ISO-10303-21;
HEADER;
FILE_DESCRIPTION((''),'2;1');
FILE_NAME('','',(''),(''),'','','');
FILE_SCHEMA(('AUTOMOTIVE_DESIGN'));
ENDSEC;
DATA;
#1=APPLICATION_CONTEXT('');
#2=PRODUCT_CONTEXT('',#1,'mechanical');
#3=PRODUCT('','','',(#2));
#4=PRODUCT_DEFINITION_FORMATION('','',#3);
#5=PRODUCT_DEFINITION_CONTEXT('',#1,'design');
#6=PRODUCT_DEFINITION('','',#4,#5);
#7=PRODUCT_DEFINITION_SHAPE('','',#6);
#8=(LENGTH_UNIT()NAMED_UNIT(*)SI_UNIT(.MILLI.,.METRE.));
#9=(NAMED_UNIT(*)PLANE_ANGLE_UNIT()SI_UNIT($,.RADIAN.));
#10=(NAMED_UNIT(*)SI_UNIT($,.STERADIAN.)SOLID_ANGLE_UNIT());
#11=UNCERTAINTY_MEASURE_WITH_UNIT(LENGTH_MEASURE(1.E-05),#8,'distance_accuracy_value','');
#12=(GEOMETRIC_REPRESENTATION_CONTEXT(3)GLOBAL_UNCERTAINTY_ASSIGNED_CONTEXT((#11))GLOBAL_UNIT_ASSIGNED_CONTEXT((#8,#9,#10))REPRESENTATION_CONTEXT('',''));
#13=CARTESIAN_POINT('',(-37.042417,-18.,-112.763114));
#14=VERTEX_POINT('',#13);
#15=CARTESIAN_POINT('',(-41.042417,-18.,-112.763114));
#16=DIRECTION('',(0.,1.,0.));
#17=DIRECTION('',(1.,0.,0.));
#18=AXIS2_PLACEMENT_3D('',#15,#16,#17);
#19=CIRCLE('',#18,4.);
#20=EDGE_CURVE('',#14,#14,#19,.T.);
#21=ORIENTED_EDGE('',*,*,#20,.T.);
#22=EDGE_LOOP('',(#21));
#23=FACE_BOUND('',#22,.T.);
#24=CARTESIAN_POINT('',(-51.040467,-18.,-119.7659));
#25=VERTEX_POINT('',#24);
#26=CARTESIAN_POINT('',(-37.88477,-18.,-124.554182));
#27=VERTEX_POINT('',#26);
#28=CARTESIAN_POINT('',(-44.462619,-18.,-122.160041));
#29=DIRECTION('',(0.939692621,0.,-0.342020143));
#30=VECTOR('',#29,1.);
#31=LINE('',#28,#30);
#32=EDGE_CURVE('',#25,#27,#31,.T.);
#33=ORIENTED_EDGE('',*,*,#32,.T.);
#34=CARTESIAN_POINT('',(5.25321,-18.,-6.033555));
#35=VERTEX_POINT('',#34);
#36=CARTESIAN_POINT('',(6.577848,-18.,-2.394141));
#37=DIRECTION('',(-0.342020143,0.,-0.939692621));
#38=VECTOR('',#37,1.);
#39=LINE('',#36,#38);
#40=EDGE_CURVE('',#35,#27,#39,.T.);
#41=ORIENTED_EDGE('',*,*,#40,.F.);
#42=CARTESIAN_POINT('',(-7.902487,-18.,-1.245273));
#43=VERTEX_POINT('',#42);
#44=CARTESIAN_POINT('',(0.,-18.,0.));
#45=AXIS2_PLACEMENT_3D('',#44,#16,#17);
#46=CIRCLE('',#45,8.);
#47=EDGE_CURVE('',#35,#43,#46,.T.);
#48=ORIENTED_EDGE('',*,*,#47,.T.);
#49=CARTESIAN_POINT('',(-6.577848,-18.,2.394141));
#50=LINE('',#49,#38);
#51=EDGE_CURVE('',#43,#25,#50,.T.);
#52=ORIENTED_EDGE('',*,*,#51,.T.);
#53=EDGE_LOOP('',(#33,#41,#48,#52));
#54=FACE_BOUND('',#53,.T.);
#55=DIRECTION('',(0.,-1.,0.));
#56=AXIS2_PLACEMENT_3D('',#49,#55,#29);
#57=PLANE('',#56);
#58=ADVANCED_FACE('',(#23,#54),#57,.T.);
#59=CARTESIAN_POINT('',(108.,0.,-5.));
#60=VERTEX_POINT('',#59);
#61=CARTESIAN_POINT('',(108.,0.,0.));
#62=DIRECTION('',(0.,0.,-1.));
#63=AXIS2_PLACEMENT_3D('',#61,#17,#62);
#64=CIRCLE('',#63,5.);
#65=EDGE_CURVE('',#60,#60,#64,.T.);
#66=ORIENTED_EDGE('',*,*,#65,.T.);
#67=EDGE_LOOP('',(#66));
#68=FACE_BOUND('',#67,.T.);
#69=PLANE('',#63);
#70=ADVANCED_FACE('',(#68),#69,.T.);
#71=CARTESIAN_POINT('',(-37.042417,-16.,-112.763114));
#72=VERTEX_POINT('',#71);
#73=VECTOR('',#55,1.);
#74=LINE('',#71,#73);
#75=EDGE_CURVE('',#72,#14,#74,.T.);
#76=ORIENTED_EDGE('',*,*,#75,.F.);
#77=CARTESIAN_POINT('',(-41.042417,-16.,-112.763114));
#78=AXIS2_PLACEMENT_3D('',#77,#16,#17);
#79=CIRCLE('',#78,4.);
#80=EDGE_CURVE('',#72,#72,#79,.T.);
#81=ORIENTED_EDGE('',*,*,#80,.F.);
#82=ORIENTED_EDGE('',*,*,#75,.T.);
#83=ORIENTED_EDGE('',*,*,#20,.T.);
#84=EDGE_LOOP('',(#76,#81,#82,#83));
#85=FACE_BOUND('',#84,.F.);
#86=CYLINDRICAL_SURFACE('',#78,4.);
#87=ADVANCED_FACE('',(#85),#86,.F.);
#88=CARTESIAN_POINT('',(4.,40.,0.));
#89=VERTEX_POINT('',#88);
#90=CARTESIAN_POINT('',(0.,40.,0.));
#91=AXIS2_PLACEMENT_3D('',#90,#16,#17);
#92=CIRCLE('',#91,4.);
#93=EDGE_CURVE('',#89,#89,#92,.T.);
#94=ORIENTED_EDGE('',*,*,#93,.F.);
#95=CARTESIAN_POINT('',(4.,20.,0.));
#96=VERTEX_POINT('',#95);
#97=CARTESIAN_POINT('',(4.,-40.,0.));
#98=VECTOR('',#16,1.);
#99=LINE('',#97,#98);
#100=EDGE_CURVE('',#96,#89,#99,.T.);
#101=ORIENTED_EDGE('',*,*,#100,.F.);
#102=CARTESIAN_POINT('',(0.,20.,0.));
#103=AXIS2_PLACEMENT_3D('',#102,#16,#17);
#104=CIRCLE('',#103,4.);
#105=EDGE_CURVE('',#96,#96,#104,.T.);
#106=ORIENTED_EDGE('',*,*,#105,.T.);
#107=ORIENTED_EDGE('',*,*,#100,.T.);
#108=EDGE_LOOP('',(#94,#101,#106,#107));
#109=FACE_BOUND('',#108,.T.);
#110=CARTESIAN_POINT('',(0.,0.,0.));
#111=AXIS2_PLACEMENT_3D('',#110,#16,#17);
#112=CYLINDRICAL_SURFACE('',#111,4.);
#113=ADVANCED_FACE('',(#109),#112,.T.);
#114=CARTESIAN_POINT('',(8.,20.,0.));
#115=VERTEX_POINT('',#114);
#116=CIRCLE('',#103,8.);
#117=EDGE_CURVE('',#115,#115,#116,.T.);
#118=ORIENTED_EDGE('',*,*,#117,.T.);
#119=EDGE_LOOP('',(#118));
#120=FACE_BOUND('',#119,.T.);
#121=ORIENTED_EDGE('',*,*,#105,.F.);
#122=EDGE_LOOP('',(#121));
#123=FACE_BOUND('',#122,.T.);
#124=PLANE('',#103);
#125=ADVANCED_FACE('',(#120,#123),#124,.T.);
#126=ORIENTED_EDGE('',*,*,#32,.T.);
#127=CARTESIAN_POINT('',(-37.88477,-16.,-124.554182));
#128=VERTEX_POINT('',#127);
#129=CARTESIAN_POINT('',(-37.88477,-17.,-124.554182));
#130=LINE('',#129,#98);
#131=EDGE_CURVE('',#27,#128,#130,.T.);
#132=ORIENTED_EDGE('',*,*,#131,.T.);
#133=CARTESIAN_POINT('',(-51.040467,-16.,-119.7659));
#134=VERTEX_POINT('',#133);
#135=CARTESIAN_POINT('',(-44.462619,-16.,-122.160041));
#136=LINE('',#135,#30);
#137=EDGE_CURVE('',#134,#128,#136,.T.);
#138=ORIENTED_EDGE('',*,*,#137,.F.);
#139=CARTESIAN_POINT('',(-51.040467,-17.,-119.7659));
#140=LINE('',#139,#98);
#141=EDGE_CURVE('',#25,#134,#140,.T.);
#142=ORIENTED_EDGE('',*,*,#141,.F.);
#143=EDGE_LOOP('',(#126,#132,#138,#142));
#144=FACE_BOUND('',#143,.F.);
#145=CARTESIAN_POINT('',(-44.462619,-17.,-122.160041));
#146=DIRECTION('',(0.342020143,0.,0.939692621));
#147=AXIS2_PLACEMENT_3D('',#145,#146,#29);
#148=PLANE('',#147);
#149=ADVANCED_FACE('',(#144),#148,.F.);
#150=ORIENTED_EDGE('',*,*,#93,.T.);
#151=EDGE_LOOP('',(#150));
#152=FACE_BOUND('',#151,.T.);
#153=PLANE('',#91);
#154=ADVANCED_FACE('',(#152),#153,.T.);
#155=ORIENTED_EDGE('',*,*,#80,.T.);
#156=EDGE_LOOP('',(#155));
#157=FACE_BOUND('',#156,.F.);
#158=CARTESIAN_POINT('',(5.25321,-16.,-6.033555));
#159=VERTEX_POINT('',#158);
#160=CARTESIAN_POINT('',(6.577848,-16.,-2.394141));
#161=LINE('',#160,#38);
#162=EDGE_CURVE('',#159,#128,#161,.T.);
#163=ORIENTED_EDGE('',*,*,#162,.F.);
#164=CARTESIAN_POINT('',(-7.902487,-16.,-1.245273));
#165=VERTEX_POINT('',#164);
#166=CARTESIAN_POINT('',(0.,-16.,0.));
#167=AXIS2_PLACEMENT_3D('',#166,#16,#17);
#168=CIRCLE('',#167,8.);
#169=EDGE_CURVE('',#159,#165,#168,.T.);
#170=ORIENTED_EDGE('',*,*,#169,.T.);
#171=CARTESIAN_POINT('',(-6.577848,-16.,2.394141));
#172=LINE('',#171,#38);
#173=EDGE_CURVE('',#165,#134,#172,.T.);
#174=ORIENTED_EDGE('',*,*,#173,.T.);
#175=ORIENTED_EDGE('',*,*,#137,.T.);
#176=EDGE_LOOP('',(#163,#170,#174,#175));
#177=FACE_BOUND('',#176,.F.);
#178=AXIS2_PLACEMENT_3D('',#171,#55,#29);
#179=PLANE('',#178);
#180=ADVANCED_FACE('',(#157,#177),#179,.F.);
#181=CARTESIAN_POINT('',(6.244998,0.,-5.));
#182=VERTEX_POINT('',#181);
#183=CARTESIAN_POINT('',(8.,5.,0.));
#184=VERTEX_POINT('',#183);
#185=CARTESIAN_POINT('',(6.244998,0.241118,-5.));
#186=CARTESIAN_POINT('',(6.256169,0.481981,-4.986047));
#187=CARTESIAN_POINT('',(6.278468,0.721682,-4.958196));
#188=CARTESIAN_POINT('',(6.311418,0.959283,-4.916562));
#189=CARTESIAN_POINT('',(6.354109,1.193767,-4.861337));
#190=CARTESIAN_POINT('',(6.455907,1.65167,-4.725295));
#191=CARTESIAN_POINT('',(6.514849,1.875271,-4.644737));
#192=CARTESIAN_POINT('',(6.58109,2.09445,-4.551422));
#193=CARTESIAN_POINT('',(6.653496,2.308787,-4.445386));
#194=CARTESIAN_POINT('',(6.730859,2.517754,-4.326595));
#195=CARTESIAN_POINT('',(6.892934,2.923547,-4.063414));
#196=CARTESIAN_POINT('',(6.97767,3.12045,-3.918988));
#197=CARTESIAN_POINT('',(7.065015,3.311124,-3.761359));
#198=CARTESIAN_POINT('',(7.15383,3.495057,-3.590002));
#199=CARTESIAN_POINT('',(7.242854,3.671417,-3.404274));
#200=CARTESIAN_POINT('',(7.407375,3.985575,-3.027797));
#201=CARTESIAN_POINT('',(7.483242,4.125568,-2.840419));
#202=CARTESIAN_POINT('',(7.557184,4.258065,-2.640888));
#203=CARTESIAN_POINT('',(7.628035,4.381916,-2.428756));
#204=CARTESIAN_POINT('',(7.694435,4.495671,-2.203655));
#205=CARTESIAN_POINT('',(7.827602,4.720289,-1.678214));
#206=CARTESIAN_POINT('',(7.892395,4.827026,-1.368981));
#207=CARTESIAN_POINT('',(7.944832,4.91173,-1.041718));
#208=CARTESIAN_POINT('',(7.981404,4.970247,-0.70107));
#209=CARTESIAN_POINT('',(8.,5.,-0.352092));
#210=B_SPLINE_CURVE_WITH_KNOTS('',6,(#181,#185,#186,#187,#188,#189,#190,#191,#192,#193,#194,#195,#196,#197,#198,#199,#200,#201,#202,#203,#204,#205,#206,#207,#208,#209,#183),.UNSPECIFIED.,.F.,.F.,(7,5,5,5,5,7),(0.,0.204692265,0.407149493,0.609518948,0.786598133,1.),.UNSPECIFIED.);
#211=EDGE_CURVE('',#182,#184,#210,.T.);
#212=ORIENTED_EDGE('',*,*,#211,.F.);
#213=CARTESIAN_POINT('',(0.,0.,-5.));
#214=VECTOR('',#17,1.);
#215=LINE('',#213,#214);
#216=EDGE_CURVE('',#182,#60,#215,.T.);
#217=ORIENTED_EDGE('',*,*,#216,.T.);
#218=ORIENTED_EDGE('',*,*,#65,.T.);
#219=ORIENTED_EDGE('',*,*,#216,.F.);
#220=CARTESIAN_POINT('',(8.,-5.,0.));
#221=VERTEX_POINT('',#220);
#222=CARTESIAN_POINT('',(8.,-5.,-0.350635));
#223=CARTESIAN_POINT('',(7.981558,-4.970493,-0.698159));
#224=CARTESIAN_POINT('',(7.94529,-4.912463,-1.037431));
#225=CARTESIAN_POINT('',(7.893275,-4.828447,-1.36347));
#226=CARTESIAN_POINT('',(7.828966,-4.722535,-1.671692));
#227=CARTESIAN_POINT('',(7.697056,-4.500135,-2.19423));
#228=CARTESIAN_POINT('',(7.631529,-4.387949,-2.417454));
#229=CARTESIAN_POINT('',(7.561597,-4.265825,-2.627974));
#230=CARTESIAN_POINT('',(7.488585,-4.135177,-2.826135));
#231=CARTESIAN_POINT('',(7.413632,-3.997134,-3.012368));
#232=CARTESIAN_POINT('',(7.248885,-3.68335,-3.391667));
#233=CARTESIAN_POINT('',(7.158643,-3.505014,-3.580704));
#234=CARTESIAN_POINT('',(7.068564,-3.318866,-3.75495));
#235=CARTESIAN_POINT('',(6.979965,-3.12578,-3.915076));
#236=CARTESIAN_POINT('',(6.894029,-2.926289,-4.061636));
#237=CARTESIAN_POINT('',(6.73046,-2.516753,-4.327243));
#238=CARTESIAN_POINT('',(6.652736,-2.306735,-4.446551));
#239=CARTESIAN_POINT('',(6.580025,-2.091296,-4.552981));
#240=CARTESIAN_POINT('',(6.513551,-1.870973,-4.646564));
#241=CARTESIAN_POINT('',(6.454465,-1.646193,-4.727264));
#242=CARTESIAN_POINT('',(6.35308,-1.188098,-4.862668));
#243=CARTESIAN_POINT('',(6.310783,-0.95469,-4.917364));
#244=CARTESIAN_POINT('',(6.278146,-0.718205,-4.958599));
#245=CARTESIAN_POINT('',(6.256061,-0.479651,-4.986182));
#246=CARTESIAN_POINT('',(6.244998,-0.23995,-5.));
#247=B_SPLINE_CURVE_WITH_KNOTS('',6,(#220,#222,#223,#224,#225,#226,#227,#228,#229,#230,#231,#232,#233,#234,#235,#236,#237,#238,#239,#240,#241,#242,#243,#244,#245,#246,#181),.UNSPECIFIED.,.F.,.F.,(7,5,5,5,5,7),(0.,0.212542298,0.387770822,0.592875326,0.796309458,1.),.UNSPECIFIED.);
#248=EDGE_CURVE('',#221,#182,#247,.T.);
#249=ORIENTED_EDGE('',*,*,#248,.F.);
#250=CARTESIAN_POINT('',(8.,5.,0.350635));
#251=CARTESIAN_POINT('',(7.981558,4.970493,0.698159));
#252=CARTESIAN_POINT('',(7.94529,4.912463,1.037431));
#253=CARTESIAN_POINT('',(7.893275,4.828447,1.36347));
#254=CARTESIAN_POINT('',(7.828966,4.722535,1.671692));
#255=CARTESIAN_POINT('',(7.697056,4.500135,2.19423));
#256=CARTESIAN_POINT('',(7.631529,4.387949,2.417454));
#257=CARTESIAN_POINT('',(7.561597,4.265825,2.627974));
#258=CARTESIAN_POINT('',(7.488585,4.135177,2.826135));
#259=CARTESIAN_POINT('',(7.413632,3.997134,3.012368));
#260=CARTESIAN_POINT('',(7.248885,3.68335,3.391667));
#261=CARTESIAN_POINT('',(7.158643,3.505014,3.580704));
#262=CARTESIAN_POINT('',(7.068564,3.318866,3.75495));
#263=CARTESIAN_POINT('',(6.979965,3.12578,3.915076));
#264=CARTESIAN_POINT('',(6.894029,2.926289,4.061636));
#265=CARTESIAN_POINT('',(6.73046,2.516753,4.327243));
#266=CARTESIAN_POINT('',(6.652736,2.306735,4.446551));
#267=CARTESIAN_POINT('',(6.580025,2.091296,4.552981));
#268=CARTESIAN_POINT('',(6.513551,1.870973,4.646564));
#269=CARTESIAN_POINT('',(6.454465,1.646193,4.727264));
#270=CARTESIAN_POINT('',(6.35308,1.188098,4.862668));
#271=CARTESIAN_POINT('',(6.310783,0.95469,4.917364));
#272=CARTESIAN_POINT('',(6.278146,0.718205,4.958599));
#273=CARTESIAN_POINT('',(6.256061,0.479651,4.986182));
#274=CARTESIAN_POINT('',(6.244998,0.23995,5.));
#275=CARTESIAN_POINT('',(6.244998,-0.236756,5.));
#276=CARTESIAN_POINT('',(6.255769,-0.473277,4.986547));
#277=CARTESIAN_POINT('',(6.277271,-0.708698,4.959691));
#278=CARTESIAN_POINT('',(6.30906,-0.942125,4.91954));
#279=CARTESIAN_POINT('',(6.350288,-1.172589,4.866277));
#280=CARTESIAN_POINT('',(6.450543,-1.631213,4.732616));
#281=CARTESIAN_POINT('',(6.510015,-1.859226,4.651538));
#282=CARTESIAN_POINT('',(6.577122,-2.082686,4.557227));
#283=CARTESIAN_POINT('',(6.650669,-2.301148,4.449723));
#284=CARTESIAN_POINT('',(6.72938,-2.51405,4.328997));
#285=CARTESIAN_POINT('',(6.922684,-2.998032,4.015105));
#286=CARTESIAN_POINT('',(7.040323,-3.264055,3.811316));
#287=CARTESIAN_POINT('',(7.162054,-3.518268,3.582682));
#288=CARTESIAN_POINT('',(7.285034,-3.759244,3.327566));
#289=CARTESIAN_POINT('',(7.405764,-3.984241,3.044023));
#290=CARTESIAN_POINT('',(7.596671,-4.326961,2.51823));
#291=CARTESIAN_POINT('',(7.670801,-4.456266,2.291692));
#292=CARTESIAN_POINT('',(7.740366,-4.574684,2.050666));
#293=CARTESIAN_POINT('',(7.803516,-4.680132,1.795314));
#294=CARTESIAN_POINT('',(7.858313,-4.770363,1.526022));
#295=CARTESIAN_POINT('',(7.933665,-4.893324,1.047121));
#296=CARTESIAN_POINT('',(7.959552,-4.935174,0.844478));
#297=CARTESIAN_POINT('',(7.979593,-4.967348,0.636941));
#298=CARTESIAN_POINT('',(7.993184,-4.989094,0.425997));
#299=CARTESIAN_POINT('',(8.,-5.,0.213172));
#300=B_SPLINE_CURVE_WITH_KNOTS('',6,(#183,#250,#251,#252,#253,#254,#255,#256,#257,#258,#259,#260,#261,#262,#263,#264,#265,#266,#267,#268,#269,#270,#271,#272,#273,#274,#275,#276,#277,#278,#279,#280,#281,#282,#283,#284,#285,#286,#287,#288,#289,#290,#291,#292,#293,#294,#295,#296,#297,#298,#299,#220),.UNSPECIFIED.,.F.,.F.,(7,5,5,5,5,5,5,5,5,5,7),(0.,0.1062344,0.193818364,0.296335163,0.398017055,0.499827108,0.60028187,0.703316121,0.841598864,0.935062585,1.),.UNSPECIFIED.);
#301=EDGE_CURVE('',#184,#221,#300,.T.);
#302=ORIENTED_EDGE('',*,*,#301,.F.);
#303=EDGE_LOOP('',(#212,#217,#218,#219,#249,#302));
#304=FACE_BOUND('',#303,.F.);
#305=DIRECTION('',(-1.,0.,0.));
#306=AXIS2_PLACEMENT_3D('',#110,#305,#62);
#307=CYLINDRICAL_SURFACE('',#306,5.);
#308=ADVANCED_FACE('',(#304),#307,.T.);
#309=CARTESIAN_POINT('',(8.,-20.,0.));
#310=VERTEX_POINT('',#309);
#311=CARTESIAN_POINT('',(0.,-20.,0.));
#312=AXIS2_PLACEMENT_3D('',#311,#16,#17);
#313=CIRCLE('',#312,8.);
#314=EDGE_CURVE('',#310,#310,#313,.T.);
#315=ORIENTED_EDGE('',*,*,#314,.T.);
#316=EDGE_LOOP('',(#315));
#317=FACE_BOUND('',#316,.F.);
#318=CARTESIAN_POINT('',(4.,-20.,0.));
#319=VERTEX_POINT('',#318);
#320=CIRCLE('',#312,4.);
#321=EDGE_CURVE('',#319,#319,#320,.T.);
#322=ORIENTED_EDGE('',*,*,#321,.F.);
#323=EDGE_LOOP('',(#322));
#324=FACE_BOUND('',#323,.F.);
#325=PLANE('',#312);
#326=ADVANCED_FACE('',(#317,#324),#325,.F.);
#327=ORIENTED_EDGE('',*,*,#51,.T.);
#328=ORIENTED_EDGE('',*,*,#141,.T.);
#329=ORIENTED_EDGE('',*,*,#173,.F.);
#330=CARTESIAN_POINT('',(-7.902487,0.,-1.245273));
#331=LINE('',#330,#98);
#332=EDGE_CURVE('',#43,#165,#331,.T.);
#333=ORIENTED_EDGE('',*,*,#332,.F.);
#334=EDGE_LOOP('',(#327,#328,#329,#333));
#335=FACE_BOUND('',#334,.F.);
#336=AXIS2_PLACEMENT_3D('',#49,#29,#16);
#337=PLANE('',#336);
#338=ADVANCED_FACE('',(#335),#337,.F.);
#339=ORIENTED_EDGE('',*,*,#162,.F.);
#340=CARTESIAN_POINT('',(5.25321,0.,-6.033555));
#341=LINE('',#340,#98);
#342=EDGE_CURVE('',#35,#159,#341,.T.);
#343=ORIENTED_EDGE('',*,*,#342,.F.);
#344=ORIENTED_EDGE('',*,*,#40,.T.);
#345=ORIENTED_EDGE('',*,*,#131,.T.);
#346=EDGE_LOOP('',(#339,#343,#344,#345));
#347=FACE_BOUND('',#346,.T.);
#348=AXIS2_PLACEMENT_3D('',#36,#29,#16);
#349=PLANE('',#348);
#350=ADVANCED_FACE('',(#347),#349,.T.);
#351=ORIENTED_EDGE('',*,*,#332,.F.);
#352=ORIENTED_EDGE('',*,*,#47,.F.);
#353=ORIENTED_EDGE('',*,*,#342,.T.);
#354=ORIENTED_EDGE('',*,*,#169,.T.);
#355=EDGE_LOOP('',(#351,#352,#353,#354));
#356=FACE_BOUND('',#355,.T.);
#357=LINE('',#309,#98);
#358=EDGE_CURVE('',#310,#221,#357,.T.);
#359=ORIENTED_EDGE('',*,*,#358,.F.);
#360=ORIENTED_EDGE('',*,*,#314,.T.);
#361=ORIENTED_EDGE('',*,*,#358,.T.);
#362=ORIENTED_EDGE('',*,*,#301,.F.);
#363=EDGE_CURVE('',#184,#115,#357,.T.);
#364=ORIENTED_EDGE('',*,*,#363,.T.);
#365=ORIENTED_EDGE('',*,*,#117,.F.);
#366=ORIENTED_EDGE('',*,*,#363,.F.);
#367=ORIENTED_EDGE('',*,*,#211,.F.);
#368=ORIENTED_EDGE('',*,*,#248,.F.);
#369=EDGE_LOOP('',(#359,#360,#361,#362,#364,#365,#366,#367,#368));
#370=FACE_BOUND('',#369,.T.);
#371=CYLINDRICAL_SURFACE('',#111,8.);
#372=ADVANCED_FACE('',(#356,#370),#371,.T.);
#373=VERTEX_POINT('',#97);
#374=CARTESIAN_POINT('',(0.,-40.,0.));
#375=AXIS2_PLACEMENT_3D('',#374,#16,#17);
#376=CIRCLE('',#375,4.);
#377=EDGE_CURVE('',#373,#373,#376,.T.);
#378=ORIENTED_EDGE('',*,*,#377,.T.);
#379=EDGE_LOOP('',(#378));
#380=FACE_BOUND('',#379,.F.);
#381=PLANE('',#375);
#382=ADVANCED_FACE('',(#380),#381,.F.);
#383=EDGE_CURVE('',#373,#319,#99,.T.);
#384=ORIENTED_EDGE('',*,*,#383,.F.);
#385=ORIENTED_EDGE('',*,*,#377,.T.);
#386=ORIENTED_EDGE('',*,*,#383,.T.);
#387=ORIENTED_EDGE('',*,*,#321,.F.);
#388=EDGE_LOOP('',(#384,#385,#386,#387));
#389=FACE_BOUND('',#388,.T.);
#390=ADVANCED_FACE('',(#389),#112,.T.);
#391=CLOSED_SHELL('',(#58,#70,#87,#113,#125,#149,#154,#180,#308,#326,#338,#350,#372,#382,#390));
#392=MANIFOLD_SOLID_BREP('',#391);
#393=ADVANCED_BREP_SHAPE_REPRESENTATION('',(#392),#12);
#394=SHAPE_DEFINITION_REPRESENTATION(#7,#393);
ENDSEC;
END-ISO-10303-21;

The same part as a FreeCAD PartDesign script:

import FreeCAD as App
import Part
import Sketcher
from FreeCAD import Vector
Q = App.Units.Quantity


def add_polygon(sketch, points):
    """Adds a closed chain of lines whose ends are joined by coincident constraints."""
    first, n = sketch.GeometryCount, len(points)
    for a, b in zip(points, points[1:] + points[:1]):
        sketch.addGeometry(Part.LineSegment(App.Vector(*a, 0), App.Vector(*b, 0)), False)
    for i in range(n):
        sketch.addConstraint(Sketcher.Constraint("Coincident", first + i, 2, first + (i + 1) % n, 1))

doc = App.newDocument("Part")
body = doc.addObject("PartDesign::Body", "Body")

# Sketch on XZ plane
sketch1 = body.newObject("Sketcher::SketchObject", "Sketch")
sketch1.AttachmentSupport = (doc.getObject("XZ_Plane"), [""])
sketch1.MapMode = "FlatFace"
sketch1.addGeometry(Part.Circle(Vector(0, 0, 0), Vector(0, 0, 1), 4), False)
sketch1.addConstraint(Sketcher.Constraint("Coincident", 0, 3, -1, 1))
sketch1.addConstraint(Sketcher.Constraint("Diameter", 0, Q("8 mm")))
pad1 = body.newObject("PartDesign::Pad", "Pad")
pad1.Profile = sketch1
pad1.Length = 80
pad1.Midplane = True

# Sketch on XZ plane
sketch2 = body.newObject("Sketcher::SketchObject", "Sketch001")
sketch2.AttachmentSupport = (doc.getObject("XZ_Plane"), [""])
sketch2.MapMode = "FlatFace"
sketch2.addGeometry(Part.Circle(Vector(0, 0, 0), Vector(0, 0, 1), 8), False)
sketch2.addConstraint(Sketcher.Constraint("Coincident", 0, 3, -1, 1))
sketch2.addConstraint(Sketcher.Constraint("Diameter", 0, Q("16 mm")))
pad2 = body.newObject("PartDesign::Pad", "Pad001")
pad2.Profile = sketch2
pad2.Length = 40
pad2.Midplane = True

# Sketch on YZ plane
sketch3 = body.newObject("Sketcher::SketchObject", "Sketch002")
sketch3.AttachmentSupport = (doc.getObject("YZ_Plane"), [""])
sketch3.MapMode = "FlatFace"
sketch3.addGeometry(Part.Circle(Vector(0, 0, 0), Vector(0, 0, 1), 5), False)
sketch3.addConstraint(Sketcher.Constraint("Coincident", 0, 3, -1, 1))
sketch3.addConstraint(Sketcher.Constraint("Diameter", 0, Q("10 mm")))
pad3 = body.newObject("PartDesign::Pad", "Pad002")
pad3.Profile = sketch3
pad3.Length = 108

# Sketch on an angled plane
sketch4 = body.newObject("Sketcher::SketchObject", "Sketch003")
sketch4.Placement = App.Placement(Vector(0, 0, 0), App.Rotation(Vector(0.939692621, 0, -0.342020143), Vector(0, 1, 0), Vector(0.342020143, 0, 0.939692621), "ZXY"))
add_polygon(sketch4, [(-7, -16), (-7, -18), (7, -18), (7, -16)])  # lines 0-3
sketch4.addConstraint(Sketcher.Constraint("Vertical", 0))
sketch4.addConstraint(Sketcher.Constraint("Horizontal", 1))
sketch4.addConstraint(Sketcher.Constraint("Vertical", 2))
sketch4.addConstraint(Sketcher.Constraint("Horizontal", 3))
sketch4.addConstraint(Sketcher.Constraint("DistanceX", 1, 1, 1, 2, Q("14 mm")))
sketch4.addConstraint(Sketcher.Constraint("DistanceY", 0, 2, 0, 1, Q("2 mm")))
sketch4.addConstraint(Sketcher.Constraint("DistanceX", 0, 2, -1, 1, Q("7 mm")))
sketch4.addConstraint(Sketcher.Constraint("DistanceY", 0, 2, -1, 1, Q("18 mm")))
pad4 = body.newObject("PartDesign::Pad", "Pad003")
pad4.Profile = sketch4
pad4.Length = 130
pad4.Reversed = True

# Sketch on XZ plane
sketch5 = body.newObject("Sketcher::SketchObject", "Sketch004")
sketch5.AttachmentSupport = (doc.getObject("XZ_Plane"), [""])
sketch5.MapMode = "FlatFace"
sketch5.AttachmentOffset = App.Placement(Vector(0, 0, 16), App.Rotation())
sketch5.addGeometry(Part.Circle(Vector(-41.042417, -112.763114, 0), Vector(0, 0, 1), 4), False)
sketch5.addConstraint(Sketcher.Constraint("Diameter", 0, Q("8 mm")))
sketch5.addConstraint(Sketcher.Constraint("DistanceX", 0, 3, -1, 1, Q("41.042417 mm")))
sketch5.addConstraint(Sketcher.Constraint("DistanceY", 0, 3, -1, 1, Q("112.763114 mm")))
pocket1 = body.newObject("PartDesign::Pocket", "Pocket")
pocket1.Profile = sketch5
pocket1.Type = "UpToFirst"
pocket1.Reversed = True

doc.recompute()
